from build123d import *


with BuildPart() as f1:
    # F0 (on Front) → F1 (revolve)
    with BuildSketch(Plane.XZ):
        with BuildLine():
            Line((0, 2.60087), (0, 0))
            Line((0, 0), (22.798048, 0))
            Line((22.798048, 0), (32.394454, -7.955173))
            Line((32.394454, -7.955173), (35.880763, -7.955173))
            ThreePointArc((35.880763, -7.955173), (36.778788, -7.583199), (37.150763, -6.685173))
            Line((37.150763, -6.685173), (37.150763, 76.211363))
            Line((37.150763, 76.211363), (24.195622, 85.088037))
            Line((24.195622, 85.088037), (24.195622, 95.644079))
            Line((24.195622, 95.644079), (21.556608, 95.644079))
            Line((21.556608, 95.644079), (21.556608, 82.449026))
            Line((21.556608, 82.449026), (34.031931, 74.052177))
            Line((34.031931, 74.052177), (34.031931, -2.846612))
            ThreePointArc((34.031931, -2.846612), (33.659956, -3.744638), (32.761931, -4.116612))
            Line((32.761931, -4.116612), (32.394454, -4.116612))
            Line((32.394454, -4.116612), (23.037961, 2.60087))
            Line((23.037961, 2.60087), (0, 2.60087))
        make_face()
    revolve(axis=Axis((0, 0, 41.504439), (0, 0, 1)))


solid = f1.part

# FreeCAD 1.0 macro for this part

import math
import FreeCAD as App
import Part
import Sketcher

V = App.Vector
Q = App.Units.Quantity

doc = App.newDocument("Part")
body = doc.addObject("PartDesign::Body", "Body")

sketch1 = body.newObject("Sketcher::SketchObject", "Sketch")
sketch1.AttachmentSupport = (doc.getObject("XZ_Plane"), [""])
sketch1.MapMode = "FlatFace"
sketch1.addGeometry([
    Part.LineSegment(V(0, 2.6, 0), V(0, 0, 0)),
    Part.LineSegment(V(0, 0, 0), V(22.8, 0, 0)),
    Part.LineSegment(V(22.8, 0, 0), V(32.39, -7.96, 0)),
    Part.LineSegment(V(32.39, -7.96, 0), V(35.88, -7.96, 0)),
    Part.ArcOfCircle(Part.Circle(V(35.88, -6.69, 0), V(0, 0, 1), 1.27), math.radians(-90), math.radians(0)),
    Part.LineSegment(V(37.15, -6.69, 0), V(37.15, 76.21, 0)),
    Part.LineSegment(V(37.15, 76.21, 0), V(24.2, 85.09, 0)),
    Part.LineSegment(V(24.2, 85.09, 0), V(24.2, 95.64, 0)),
    Part.LineSegment(V(24.2, 95.64, 0), V(21.56, 95.64, 0)),
    Part.LineSegment(V(21.56, 95.64, 0), V(21.56, 82.45, 0)),
    Part.LineSegment(V(21.56, 82.45, 0), V(34.03, 74.05, 0)),
    Part.LineSegment(V(34.03, 74.05, 0), V(34.03, -2.85, 0)),
    Part.ArcOfCircle(Part.Circle(V(32.76, -2.85, 0), V(0, 0, 1), 1.27), math.radians(-90), math.radians(0)),
    Part.LineSegment(V(32.76, -4.12, 0), V(32.39, -4.12, 0)),
    Part.LineSegment(V(32.39, -4.12, 0), V(23.04, 2.6, 0)),
    Part.LineSegment(V(23.04, 2.6, 0), V(0, 2.6, 0)),
], False)
sketch1.addConstraint([
    Sketcher.Constraint("Coincident", 0, 2, 1, 1),
    Sketcher.Constraint("Coincident", 1, 2, 2, 1),
    Sketcher.Constraint("Coincident", 2, 2, 3, 1),
    Sketcher.Constraint("Tangent", 3, 2, 4, 1),
    Sketcher.Constraint("Tangent", 4, 2, 5, 1),
    Sketcher.Constraint("Coincident", 5, 2, 6, 1),
    Sketcher.Constraint("Coincident", 6, 2, 7, 1),
    Sketcher.Constraint("Coincident", 7, 2, 8, 1),
    Sketcher.Constraint("Coincident", 8, 2, 9, 1),
    Sketcher.Constraint("Coincident", 9, 2, 10, 1),
    Sketcher.Constraint("Coincident", 10, 2, 11, 1),
    Sketcher.Constraint("Tangent", 11, 2, 12, 2),
    Sketcher.Constraint("Tangent", 12, 1, 13, 1),
    Sketcher.Constraint("Coincident", 13, 2, 14, 1),
    Sketcher.Constraint("Coincident", 14, 2, 15, 1),
    Sketcher.Constraint("Coincident", 15, 2, 0, 1),
    Sketcher.Constraint("Vertical", 0),
    Sketcher.Constraint("Horizontal", 1),
    Sketcher.Constraint("Horizontal", 3),
    Sketcher.Constraint("Vertical", 5),
    Sketcher.Constraint("Vertical", 7),
    Sketcher.Constraint("Horizontal", 8),
    Sketcher.Constraint("Vertical", 9),
    Sketcher.Constraint("Vertical", 11),
    Sketcher.Constraint("Horizontal", 13),
    Sketcher.Constraint("Horizontal", 15),
    Sketcher.Constraint("Coincident", 0, 2, -1, 1),
    Sketcher.Constraint("Equal", 4, 12),
    Sketcher.Constraint("Vertical", 2, 2, 13, 2),
    Sketcher.Constraint("Radius", 4, Q("0.05 in")),
    Sketcher.Constraint("DistanceX", 1, 1, 1, 2, 22.798048),
    Sketcher.Constraint("DistanceX", 3, 1, 3, 2, 3.486309),
    Sketcher.Constraint("DistanceX", 15, 2, 15, 1, 23.037961),
    Sketcher.Constraint("DistanceY", 0, 2, 0, 1, 2.60087),
    Sketcher.Constraint("DistanceY", 11, 2, 11, 1, 76.898789),
    Sketcher.Constraint("Distance", 6, 15.70449),
    Sketcher.Constraint("DistanceX", 8, 2, 8, 1, 2.639014),
    Sketcher.Constraint("DistanceX", 13, 2, 13, 1, 0.367477),
    Sketcher.Constraint("DistanceY", 5, 1, 5, 2, 82.896536),
    Sketcher.Constraint("DistanceY", 7, 1, 7, 2, 10.556042),
    Sketcher.Constraint("DistanceY", 9, 2, 9, 1, 13.195053),
    Sketcher.Constraint("DistanceX", -1, 1, 12, 3, 32.761931),
    Sketcher.Constraint("DistanceY", 12, 3, -1, 1, 2.846612),
    Sketcher.Constraint("DistanceX", -1, 1, 6, 2, 24.195622),
    Sketcher.Constraint("DistanceY", -1, 1, 7, 2, 95.644079),
])
revolution = body.newObject("PartDesign::Revolution", "Revolution")
revolution.Profile = sketch1
revolution.ReferenceAxis = (sketch1, ["V_Axis"])
revolution.Angle = 360

doc.recompute()
